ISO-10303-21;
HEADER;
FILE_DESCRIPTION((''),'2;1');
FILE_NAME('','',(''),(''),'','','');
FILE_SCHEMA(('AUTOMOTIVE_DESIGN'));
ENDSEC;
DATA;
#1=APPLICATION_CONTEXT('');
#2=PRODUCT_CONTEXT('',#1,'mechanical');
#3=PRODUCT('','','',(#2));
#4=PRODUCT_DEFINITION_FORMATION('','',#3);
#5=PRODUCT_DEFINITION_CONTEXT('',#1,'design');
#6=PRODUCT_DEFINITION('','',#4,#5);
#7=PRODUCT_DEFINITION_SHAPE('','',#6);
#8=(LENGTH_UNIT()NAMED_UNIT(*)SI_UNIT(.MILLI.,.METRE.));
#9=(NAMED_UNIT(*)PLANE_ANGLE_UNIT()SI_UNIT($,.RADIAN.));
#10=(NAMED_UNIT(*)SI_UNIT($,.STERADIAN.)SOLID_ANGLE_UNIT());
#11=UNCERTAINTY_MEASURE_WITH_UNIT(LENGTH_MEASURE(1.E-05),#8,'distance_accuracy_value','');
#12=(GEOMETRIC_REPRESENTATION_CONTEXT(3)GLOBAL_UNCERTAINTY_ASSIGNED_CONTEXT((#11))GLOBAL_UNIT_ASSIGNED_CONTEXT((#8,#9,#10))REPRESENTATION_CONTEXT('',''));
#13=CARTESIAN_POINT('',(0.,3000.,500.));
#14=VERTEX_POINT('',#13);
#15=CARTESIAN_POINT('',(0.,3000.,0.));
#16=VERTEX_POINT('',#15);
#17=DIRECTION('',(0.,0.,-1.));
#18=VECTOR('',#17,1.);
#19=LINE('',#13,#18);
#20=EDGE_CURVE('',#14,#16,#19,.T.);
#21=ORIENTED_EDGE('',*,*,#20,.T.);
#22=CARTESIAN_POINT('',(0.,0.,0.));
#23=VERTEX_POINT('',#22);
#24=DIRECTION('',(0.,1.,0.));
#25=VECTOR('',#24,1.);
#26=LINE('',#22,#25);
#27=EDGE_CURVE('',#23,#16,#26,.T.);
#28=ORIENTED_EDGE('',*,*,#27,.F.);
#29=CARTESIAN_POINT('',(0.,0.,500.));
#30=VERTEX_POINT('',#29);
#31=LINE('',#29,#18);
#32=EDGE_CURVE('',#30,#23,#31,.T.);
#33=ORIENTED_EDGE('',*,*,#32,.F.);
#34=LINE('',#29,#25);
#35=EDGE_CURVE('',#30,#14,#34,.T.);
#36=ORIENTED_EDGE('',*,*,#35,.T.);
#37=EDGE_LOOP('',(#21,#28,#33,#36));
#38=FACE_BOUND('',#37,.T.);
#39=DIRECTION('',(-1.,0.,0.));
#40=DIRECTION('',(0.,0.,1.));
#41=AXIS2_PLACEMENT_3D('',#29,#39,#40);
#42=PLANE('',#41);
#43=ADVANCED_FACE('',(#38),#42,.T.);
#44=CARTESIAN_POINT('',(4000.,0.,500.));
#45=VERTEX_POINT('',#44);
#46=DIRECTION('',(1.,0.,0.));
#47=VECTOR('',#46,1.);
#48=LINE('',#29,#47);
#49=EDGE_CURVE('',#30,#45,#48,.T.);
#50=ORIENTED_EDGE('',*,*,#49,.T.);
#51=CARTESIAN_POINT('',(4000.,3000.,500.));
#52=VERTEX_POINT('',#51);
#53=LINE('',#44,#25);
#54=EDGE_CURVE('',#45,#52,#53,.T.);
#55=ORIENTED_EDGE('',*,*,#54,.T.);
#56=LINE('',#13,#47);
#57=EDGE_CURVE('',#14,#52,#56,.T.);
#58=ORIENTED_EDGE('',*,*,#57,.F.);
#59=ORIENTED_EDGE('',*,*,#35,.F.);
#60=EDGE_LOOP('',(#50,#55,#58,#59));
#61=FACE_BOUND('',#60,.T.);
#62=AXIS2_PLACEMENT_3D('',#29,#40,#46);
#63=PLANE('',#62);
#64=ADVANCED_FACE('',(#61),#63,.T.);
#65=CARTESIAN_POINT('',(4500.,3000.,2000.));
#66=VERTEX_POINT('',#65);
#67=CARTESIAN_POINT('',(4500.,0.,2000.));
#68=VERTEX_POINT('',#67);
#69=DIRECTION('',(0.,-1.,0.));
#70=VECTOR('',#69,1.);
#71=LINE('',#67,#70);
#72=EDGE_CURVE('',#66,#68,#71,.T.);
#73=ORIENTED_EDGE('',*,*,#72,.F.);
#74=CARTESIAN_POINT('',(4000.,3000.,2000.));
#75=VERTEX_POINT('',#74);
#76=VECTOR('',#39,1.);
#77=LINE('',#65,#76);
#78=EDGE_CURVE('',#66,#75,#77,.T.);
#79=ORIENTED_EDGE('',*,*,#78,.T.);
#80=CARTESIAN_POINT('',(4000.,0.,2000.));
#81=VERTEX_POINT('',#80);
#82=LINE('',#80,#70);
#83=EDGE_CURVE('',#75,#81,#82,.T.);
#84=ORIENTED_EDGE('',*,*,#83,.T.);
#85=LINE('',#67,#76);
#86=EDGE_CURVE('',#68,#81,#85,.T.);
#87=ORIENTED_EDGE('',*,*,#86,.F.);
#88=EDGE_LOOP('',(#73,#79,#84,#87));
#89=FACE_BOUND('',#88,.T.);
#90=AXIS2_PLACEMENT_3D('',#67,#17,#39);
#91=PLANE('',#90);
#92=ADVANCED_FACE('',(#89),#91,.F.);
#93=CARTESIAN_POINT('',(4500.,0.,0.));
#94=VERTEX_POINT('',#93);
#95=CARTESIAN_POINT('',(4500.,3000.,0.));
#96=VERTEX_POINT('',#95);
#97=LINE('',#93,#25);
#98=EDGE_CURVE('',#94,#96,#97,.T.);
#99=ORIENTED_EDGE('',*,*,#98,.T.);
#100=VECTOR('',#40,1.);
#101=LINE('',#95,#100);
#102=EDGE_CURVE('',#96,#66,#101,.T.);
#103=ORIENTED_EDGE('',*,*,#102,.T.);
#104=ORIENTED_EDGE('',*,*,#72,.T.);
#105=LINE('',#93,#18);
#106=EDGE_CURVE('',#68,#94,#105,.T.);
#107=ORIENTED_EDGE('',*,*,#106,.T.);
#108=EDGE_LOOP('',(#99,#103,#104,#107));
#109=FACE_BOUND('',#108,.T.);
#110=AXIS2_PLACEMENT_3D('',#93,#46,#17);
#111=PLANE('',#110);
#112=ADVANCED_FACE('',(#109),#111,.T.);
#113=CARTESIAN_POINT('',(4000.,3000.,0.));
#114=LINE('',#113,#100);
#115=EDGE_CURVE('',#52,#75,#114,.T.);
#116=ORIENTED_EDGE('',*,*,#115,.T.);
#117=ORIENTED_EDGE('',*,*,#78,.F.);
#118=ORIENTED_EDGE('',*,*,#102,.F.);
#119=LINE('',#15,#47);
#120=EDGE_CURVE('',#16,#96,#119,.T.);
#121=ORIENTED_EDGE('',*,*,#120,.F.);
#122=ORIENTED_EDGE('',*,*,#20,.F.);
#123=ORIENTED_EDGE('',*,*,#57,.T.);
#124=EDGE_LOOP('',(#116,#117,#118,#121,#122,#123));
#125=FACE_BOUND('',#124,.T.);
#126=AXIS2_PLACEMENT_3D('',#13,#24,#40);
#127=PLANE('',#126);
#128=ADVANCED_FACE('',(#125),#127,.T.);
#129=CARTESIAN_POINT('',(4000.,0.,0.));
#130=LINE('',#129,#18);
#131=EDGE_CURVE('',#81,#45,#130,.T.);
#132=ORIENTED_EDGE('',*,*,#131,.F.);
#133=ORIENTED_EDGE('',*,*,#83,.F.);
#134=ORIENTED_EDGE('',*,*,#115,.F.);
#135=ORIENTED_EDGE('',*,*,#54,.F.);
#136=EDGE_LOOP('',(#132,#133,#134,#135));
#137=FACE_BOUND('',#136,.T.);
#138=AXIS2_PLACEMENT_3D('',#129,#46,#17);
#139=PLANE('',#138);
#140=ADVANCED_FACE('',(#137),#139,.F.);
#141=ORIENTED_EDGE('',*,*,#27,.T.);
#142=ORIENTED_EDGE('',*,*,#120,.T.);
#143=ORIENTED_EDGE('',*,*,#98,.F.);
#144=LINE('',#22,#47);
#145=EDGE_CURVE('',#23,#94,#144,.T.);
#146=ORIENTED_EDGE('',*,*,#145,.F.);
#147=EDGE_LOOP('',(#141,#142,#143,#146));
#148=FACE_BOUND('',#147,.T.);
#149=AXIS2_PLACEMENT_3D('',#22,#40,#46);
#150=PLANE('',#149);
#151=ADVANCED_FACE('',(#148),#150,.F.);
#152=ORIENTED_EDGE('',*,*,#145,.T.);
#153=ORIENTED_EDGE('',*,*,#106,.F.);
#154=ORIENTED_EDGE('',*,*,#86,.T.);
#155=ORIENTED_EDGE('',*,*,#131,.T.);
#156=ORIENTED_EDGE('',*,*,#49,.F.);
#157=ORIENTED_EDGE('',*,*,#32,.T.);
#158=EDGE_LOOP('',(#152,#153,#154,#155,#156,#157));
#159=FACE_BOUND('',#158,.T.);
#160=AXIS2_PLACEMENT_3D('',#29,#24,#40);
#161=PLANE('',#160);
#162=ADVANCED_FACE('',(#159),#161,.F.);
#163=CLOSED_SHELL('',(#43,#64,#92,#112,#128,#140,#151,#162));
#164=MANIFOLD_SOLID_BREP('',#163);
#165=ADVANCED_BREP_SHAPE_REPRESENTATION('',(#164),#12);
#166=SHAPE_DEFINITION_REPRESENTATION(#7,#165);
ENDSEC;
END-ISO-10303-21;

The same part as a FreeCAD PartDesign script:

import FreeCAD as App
import Part
import Sketcher

doc = App.newDocument("Part")
params = doc.addObject("Spreadsheet::Sheet", "Params")
for row, (alias, value) in enumerate([
    ("sketch1_width", "4000 mm"),
    ("sketch1_height", "3000 mm"),
    ("pad1_length", "500 mm"),
    ("sketch2_width", "3000 mm"),
    ("sketch2_height", "2000 mm"),
    ("pad2_length", "500 mm"),
], start=1):
    params.set(f"A{row}", alias)
    params.set(f"B{row}", "=" + value)
    params.setAlias(f"B{row}", alias)

body = doc.addObject("PartDesign::Body", "Body")

# Sketch on XY plane
sketch1 = body.newObject("Sketcher::SketchObject", "Sketch")
sketch1.AttachmentSupport = (doc.getObject("XY_Plane"), [""])
sketch1.MapMode = "FlatFace"
sketch1.addGeometry([
    Part.LineSegment(App.Vector(0, 3000, 0), App.Vector(0, 0, 0)),
    Part.LineSegment(App.Vector(0, 0, 0), App.Vector(4000, 0, 0)),
    Part.LineSegment(App.Vector(4000, 0, 0), App.Vector(4000, 3000, 0)),
    Part.LineSegment(App.Vector(4000, 3000, 0), App.Vector(0, 3000, 0)),
], False)
sketch1.addConstraint([
    Sketcher.Constraint("Coincident", 0, 2, 1, 1),
    Sketcher.Constraint("Coincident", 1, 2, 2, 1),
    Sketcher.Constraint("Coincident", 2, 2, 3, 1),
    Sketcher.Constraint("Coincident", 3, 2, 0, 1),
    Sketcher.Constraint("Vertical", 0),
    Sketcher.Constraint("Horizontal", 1),
    Sketcher.Constraint("Vertical", 2),
    Sketcher.Constraint("Horizontal", 3),
    Sketcher.Constraint("Coincident", 0, 2, -1, 1),
    Sketcher.Constraint("DistanceX", 1, 1, 1, 2, 4000.0),
    Sketcher.Constraint("DistanceY", 0, 2, 0, 1, 3000.0),
])
sketch1.setExpression("Constraints[9]", "Params.sketch1_width")
sketch1.setExpression("Constraints[10]", "Params.sketch1_height")
pad1 = body.newObject("PartDesign::Pad", "Pad")
pad1.Profile = sketch1
pad1.setExpression("Length", "Params.pad1_length")

# Sketch on YZ plane
sketch2 = body.newObject("Sketcher::SketchObject", "Sketch001")
sketch2.AttachmentSupport = (doc.getObject("YZ_Plane"), [""])
sketch2.MapMode = "FlatFace"
sketch2.AttachmentOffset = App.Placement(App.Vector(0, 0, 4000), App.Rotation())
sketch2.addGeometry([
    Part.LineSegment(App.Vector(3000, 2000, 0), App.Vector(0, 2000, 0)),
    Part.LineSegment(App.Vector(0, 2000, 0), App.Vector(0, 0, 0)),
    Part.LineSegment(App.Vector(0, 0, 0), App.Vector(3000, 0, 0)),
    Part.LineSegment(App.Vector(3000, 0, 0), App.Vector(3000, 2000, 0)),
], False)
sketch2.addConstraint([
    Sketcher.Constraint("Coincident", 0, 2, 1, 1),
    Sketcher.Constraint("Coincident", 1, 2, 2, 1),
    Sketcher.Constraint("Coincident", 2, 2, 3, 1),
    Sketcher.Constraint("Coincident", 3, 2, 0, 1),
    Sketcher.Constraint("Horizontal", 0),
    Sketcher.Constraint("Vertical", 1),
    Sketcher.Constraint("Horizontal", 2),
    Sketcher.Constraint("Vertical", 3),
    Sketcher.Constraint("Coincident", 1, 2, -1, 1),
    Sketcher.Constraint("DistanceX", 0, 2, 0, 1, 3000.0),
    Sketcher.Constraint("DistanceY", 1, 2, 1, 1, 2000.0),
])
sketch2.setExpression("Constraints[9]", "Params.sketch2_width")
sketch2.setExpression("Constraints[10]", "Params.sketch2_height")
pad2 = body.newObject("PartDesign::Pad", "Pad001")
pad2.Profile = sketch2
pad2.setExpression("Length", "Params.pad2_length")

doc.recompute()
